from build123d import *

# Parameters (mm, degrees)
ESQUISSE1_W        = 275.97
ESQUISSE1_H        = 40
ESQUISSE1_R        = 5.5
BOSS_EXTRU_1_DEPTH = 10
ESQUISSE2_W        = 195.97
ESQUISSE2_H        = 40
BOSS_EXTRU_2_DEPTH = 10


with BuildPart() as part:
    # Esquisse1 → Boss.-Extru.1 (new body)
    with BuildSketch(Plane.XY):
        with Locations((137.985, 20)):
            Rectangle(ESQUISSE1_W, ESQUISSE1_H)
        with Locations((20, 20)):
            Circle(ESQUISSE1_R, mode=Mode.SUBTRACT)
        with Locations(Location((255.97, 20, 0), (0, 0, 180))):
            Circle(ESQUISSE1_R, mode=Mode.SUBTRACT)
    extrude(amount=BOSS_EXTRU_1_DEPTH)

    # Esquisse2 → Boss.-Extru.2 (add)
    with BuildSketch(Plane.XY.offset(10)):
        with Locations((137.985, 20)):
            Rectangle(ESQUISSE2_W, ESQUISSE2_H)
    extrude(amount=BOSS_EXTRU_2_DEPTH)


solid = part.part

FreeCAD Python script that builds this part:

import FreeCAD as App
import Part
import Sketcher
from FreeCAD import Vector
Q = App.Units.Quantity


def add_polygon(sketch, points):
    """Adds a closed chain of lines whose ends are joined by coincident constraints."""
    first, n = sketch.GeometryCount, len(points)
    for a, b in zip(points, points[1:] + points[:1]):
        sketch.addGeometry(Part.LineSegment(App.Vector(*a, 0), App.Vector(*b, 0)), False)
    for i in range(n):
        sketch.addConstraint(Sketcher.Constraint("Coincident", first + i, 2, first + (i + 1) % n, 1))

doc = App.newDocument("Part")
params = doc.addObject("Spreadsheet::Sheet", "Params")
for row, (alias, value) in enumerate([
    ("sketch1_diameter", "11 mm"),
    ("sketch1_height", "40 mm"),
    ("sketch1_width", "275.97 mm"),
    ("pad1_length", "10 mm"),
    ("sketch2_height", "40 mm"),
    ("sketch2_width", "195.97 mm"),
    ("pad2_length", "10 mm"),
], start=1):
    params.set(f"A{row}", alias)
    params.set(f"B{row}", "=" + value)
    params.setAlias(f"B{row}", alias)

body = doc.addObject("PartDesign::Body", "Body")

# Sketch on XY plane
sketch1 = body.newObject("Sketcher::SketchObject", "Sketch")
sketch1.AttachmentSupport = (doc.getObject("XY_Plane"), [""])
sketch1.MapMode = "FlatFace"
add_polygon(sketch1, [(0, 40), (0, 0), (275.97, 0), (275.97, 40)])  # lines 0-3
sketch1.addGeometry(Part.Circle(Vector(20, 20, 0), Vector(0, 0, 1), 5.5), False)  # 4
sketch1.addGeometry(Part.Circle(Vector(255.97, 20, 0), Vector(0, 0, 1), 5.5), False)  # 5
sketch1.addConstraint(Sketcher.Constraint("Vertical", 0))
sketch1.addConstraint(Sketcher.Constraint("Horizontal", 1))
sketch1.addConstraint(Sketcher.Constraint("Vertical", 2))
sketch1.addConstraint(Sketcher.Constraint("Horizontal", 3))
sketch1.addConstraint(Sketcher.Constraint("Coincident", 0, 2, -1, 1))
sketch1.addConstraint(Sketcher.Constraint("Equal", 4, 5))
sketch1.addConstraint(Sketcher.Constraint("Horizontal", 4, 3, 5, 3))
sketch1.addConstraint(Sketcher.Constraint("Diameter", 4, Q("11 mm")))
sketch1.addConstraint(Sketcher.Constraint("DistanceY", 0, 2, 0, 1, Q("40 mm")))
sketch1.addConstraint(Sketcher.Constraint("DistanceX", -1, 1, 4, 3, Q("20 mm")))
sketch1.addConstraint(Sketcher.Constraint("DistanceY", -1, 1, 4, 3, Q("20 mm")))
sketch1.addConstraint(Sketcher.Constraint("DistanceX", 5, 3, 1, 2, Q("20 mm")))
sketch1.addConstraint(Sketcher.Constraint("DistanceX", 1, 1, 1, 2, Q("275.97 mm")))
sketch1.setExpression("Constraints[11]", "Params.sketch1_diameter")
sketch1.setExpression("Constraints[12]", "Params.sketch1_height")
sketch1.setExpression("Constraints[16]", "Params.sketch1_width")
pad1 = body.newObject("PartDesign::Pad", "Pad")
pad1.Profile = sketch1
pad1.setExpression("Length", "Params.pad1_length")

# Sketch on XY plane
sketch2 = body.newObject("Sketcher::SketchObject", "Sketch001")
sketch2.AttachmentSupport = (doc.getObject("XY_Plane"), [""])
sketch2.MapMode = "FlatFace"
sketch2.AttachmentOffset = App.Placement(Vector(0, 0, 10), App.Rotation())
add_polygon(sketch2, [(40, 40), (40, 0), (235.97, 0), (235.97, 40)])  # lines 0-3
sketch2.addConstraint(Sketcher.Constraint("Vertical", 0))
sketch2.addConstraint(Sketcher.Constraint("Horizontal", 1))
sketch2.addConstraint(Sketcher.Constraint("Vertical", 2))
sketch2.addConstraint(Sketcher.Constraint("Horizontal", 3))
sketch2.addConstraint(Sketcher.Constraint("PointOnObject", 0, 2, -1))
sketch2.addConstraint(Sketcher.Constraint("DistanceY", 0, 2, 0, 1, Q("40 mm")))
sketch2.addConstraint(Sketcher.Constraint("DistanceX", -1, 1, 0, 2, Q("40 mm")))
sketch2.addConstraint(Sketcher.Constraint("DistanceX", 1, 1, 1, 2, Q("195.97 mm")))
sketch2.setExpression("Constraints[9]", "Params.sketch2_height")
sketch2.setExpression("Constraints[11]", "Params.sketch2_width")
pad2 = body.newObject("PartDesign::Pad", "Pad001")
pad2.Profile = sketch2
pad2.setExpression("Length", "Params.pad2_length")

doc.recompute()
